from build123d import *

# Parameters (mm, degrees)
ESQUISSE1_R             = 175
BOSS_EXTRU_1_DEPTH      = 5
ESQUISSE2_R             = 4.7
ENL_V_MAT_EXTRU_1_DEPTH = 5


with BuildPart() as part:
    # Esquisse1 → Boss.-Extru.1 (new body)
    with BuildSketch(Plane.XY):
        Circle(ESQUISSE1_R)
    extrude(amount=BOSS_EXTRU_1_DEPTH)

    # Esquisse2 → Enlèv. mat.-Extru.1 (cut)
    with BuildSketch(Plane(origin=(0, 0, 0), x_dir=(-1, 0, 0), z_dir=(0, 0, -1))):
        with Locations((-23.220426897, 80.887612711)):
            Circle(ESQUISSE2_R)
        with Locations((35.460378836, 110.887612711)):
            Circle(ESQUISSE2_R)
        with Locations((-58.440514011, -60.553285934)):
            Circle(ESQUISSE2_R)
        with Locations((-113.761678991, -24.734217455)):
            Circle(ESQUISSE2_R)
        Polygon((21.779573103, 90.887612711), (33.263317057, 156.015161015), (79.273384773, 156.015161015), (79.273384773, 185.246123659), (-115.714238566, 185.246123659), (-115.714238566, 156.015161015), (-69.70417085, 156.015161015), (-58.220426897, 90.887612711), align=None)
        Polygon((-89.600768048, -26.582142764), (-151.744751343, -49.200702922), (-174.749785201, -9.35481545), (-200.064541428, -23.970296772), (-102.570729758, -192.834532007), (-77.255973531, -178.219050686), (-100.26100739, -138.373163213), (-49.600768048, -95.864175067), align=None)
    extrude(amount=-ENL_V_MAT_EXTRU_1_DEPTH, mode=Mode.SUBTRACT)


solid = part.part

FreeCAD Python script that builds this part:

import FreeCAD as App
import Part
import Sketcher
Q = App.Units.Quantity


def add_polygon(sketch, points):
    """Adds a closed chain of lines whose ends are joined by coincident constraints."""
    first, n = sketch.GeometryCount, len(points)
    for a, b in zip(points, points[1:] + points[:1]):
        sketch.addGeometry(Part.LineSegment(App.Vector(*a, 0), App.Vector(*b, 0)), False)
    for i in range(n):
        sketch.addConstraint(Sketcher.Constraint("Coincident", first + i, 2, first + (i + 1) % n, 1))

doc = App.newDocument("Part")
params = doc.addObject("Spreadsheet::Sheet", "Params")
for row, (alias, value) in enumerate([
    ("sketch1_diameter", "350 mm"),
    ("pad1_length", "5 mm"),
    ("sketch2_diameter", "9.4 mm"),
    ("sketch2_width", "80 mm"),
    ("sketch2_length", "80 mm"),
    ("pocket1_length", "5 mm"),
], start=1):
    params.set(f"A{row}", alias)
    params.set(f"B{row}", "=" + value)
    params.setAlias(f"B{row}", alias)

body = doc.addObject("PartDesign::Body", "Body")

# Sketch on XY plane
sketch1 = doc.addObject("Sketcher::SketchObject", "Sketch")
body.addObject(sketch1)
sketch1.AttachmentSupport = (doc.XY_Plane, [""])
sketch1.MapMode = "FlatFace"
sketch1.addGeometry(Part.Circle(App.Vector(0, 0, 0), App.Vector(0, 0, 1), 175), False)
sketch1.addConstraint([
    Sketcher.Constraint("Coincident", 0, 3, -1, 1),
    Sketcher.Constraint("Diameter", 0, Q("350 mm")),
])
sketch1.setExpression("Constraints[1]", "Params.sketch1_diameter")
pad1 = doc.addObject("PartDesign::Pad", "Pad")
body.addObject(pad1)
pad1.Profile = sketch1
pad1.setExpression("Length", "Params.pad1_length")

# Sketch on XY plane
sketch2 = doc.addObject("Sketcher::SketchObject", "Sketch001")
body.addObject(sketch2)
sketch2.AttachmentSupport = (doc.XY_Plane, [""])
sketch2.MapMode = "FlatFace"
sketch2.addGeometry(Part.Circle(App.Vector(23.220427, 80.887613, 0), App.Vector(0, 0, 1), 4.7), False)  # 0
sketch2.addGeometry(Part.Circle(App.Vector(-35.460379, 110.887613, 0), App.Vector(0, 0, 1), 4.7), False)  # 1
sketch2.addGeometry(Part.Circle(App.Vector(58.440514, -60.553286, 0), App.Vector(0, 0, 1), 4.7), False)  # 2
sketch2.addGeometry(Part.Circle(App.Vector(113.761679, -24.734217, 0), App.Vector(0, 0, 1), 4.7), False)  # 3
add_polygon(sketch2, [(-21.779573, 90.887613), (-33.263317, 156.015161), (-79.273385, 156.015161), (-79.273385, 185.246124), (115.714239, 185.246124), (115.714239, 156.015161), (69.704171, 156.015161), (58.220427, 90.887613)])  # lines 4-11
add_polygon(sketch2, [(89.600768, -26.582143), (151.744751, -49.200703), (174.749785, -9.354815), (200.064541, -23.970297), (102.57073, -192.834532), (77.255974, -178.219051), (100.261007, -138.373163), (49.600768, -95.864175)])  # lines 12-19
sketch2.addConstraint([
    Sketcher.Constraint("Horizontal", 5),
    Sketcher.Constraint("Vertical", 6),
    Sketcher.Constraint("Horizontal", 7),
    Sketcher.Constraint("Vertical", 8),
    Sketcher.Constraint("Horizontal", 9),
    Sketcher.Constraint("Horizontal", 11),
    Sketcher.Constraint("Equal", 0, 1),
    Sketcher.Constraint("Equal", 1, 2),
    Sketcher.Constraint("Equal", 2, 3),
    Sketcher.Constraint("Perpendicular", 13, 14),
    Sketcher.Constraint("Perpendicular", 14, 15),
    Sketcher.Constraint("Perpendicular", 15, 16),
    Sketcher.Constraint("Perpendicular", 16, 17),
    Sketcher.Constraint("Parallel", 17, 19),
    Sketcher.Constraint("Horizontal", 5, 2, 8, 2),
    Sketcher.Constraint("Equal", 5, 9),
    Sketcher.Constraint("Equal", 4, 10),
    Sketcher.Constraint("Equal", 10, 12),
    Sketcher.Constraint("Equal", 14, 16),
    Sketcher.Constraint("Equal", 13, 17),
    Sketcher.Constraint("Equal", 12, 18),
    Sketcher.Constraint("Diameter", 0, Q("9.4 mm")),
    Sketcher.Constraint("DistanceX", 11, 2, 11, 1, Q("80 mm")),
    Sketcher.Constraint("Angle", 4, Q("100 deg")),
    Sketcher.Constraint("Angle", 12, Q("-20 deg")),
    Sketcher.Constraint("Angle", 13, Q("60 deg")),
    Sketcher.Constraint("Distance", 19, Q("80 mm")),
    Sketcher.Constraint("DistanceY", 0, 3, 1, 3, Q("30 mm")),
    Sketcher.Constraint("DistanceX", 0, 3, 10, 2, Q("35 mm")),
    Sketcher.Constraint("DistanceY", 0, 3, 10, 2, Q("10 mm")),
    Sketcher.Constraint("DistanceY", 2, 3, 0, 3, Q("141.440899 mm")),
    Sketcher.Constraint("DistanceX", 5, 2, 2, 3, Q("137.713899 mm")),
    Sketcher.Constraint("DistanceX", 5, 2, 5, 1, Q("46.010068 mm")),
    Sketcher.Constraint("DistanceX", 7, 1, 7, 2, Q("194.987623 mm")),
    Sketcher.Constraint("DistanceY", 6, 1, 6, 2, Q("29.230963 mm")),
    Sketcher.Constraint("DistanceX", 1, 3, -1, 1, Q("35.460379 mm")),
    Sketcher.Constraint("DistanceX", -1, 1, 3, 3, Q("113.761679 mm")),
    Sketcher.Constraint("DistanceY", -1, 1, 4, 2, Q("156.015161 mm")),
    Sketcher.Constraint("DistanceX", -1, 1, 7, 2, Q("115.714239 mm")),
    Sketcher.Constraint("DistanceX", -1, 1, 12, 2, Q("151.744751 mm")),
    Sketcher.Constraint("DistanceX", -1, 1, 14, 2, Q("200.064541 mm")),
    Sketcher.Constraint("DistanceX", -1, 1, 15, 2, Q("102.57073 mm")),
    Sketcher.Constraint("DistanceY", 16, 2, -1, 1, Q("178.219051 mm")),
    Sketcher.Constraint("DistanceY", 2, 3, 3, 3, Q("35.819068 mm")),
])
sketch2.setExpression("Constraints[37]", "Params.sketch2_diameter")
sketch2.setExpression("Constraints[38]", "Params.sketch2_width")
sketch2.setExpression("Constraints[42]", "Params.sketch2_length")
pocket1 = doc.addObject("PartDesign::Pocket", "Pocket")
body.addObject(pocket1)
pocket1.Profile = sketch2
pocket1.setExpression("Length", "Params.pocket1_length")
pocket1.Reversed = True

doc.recompute()
